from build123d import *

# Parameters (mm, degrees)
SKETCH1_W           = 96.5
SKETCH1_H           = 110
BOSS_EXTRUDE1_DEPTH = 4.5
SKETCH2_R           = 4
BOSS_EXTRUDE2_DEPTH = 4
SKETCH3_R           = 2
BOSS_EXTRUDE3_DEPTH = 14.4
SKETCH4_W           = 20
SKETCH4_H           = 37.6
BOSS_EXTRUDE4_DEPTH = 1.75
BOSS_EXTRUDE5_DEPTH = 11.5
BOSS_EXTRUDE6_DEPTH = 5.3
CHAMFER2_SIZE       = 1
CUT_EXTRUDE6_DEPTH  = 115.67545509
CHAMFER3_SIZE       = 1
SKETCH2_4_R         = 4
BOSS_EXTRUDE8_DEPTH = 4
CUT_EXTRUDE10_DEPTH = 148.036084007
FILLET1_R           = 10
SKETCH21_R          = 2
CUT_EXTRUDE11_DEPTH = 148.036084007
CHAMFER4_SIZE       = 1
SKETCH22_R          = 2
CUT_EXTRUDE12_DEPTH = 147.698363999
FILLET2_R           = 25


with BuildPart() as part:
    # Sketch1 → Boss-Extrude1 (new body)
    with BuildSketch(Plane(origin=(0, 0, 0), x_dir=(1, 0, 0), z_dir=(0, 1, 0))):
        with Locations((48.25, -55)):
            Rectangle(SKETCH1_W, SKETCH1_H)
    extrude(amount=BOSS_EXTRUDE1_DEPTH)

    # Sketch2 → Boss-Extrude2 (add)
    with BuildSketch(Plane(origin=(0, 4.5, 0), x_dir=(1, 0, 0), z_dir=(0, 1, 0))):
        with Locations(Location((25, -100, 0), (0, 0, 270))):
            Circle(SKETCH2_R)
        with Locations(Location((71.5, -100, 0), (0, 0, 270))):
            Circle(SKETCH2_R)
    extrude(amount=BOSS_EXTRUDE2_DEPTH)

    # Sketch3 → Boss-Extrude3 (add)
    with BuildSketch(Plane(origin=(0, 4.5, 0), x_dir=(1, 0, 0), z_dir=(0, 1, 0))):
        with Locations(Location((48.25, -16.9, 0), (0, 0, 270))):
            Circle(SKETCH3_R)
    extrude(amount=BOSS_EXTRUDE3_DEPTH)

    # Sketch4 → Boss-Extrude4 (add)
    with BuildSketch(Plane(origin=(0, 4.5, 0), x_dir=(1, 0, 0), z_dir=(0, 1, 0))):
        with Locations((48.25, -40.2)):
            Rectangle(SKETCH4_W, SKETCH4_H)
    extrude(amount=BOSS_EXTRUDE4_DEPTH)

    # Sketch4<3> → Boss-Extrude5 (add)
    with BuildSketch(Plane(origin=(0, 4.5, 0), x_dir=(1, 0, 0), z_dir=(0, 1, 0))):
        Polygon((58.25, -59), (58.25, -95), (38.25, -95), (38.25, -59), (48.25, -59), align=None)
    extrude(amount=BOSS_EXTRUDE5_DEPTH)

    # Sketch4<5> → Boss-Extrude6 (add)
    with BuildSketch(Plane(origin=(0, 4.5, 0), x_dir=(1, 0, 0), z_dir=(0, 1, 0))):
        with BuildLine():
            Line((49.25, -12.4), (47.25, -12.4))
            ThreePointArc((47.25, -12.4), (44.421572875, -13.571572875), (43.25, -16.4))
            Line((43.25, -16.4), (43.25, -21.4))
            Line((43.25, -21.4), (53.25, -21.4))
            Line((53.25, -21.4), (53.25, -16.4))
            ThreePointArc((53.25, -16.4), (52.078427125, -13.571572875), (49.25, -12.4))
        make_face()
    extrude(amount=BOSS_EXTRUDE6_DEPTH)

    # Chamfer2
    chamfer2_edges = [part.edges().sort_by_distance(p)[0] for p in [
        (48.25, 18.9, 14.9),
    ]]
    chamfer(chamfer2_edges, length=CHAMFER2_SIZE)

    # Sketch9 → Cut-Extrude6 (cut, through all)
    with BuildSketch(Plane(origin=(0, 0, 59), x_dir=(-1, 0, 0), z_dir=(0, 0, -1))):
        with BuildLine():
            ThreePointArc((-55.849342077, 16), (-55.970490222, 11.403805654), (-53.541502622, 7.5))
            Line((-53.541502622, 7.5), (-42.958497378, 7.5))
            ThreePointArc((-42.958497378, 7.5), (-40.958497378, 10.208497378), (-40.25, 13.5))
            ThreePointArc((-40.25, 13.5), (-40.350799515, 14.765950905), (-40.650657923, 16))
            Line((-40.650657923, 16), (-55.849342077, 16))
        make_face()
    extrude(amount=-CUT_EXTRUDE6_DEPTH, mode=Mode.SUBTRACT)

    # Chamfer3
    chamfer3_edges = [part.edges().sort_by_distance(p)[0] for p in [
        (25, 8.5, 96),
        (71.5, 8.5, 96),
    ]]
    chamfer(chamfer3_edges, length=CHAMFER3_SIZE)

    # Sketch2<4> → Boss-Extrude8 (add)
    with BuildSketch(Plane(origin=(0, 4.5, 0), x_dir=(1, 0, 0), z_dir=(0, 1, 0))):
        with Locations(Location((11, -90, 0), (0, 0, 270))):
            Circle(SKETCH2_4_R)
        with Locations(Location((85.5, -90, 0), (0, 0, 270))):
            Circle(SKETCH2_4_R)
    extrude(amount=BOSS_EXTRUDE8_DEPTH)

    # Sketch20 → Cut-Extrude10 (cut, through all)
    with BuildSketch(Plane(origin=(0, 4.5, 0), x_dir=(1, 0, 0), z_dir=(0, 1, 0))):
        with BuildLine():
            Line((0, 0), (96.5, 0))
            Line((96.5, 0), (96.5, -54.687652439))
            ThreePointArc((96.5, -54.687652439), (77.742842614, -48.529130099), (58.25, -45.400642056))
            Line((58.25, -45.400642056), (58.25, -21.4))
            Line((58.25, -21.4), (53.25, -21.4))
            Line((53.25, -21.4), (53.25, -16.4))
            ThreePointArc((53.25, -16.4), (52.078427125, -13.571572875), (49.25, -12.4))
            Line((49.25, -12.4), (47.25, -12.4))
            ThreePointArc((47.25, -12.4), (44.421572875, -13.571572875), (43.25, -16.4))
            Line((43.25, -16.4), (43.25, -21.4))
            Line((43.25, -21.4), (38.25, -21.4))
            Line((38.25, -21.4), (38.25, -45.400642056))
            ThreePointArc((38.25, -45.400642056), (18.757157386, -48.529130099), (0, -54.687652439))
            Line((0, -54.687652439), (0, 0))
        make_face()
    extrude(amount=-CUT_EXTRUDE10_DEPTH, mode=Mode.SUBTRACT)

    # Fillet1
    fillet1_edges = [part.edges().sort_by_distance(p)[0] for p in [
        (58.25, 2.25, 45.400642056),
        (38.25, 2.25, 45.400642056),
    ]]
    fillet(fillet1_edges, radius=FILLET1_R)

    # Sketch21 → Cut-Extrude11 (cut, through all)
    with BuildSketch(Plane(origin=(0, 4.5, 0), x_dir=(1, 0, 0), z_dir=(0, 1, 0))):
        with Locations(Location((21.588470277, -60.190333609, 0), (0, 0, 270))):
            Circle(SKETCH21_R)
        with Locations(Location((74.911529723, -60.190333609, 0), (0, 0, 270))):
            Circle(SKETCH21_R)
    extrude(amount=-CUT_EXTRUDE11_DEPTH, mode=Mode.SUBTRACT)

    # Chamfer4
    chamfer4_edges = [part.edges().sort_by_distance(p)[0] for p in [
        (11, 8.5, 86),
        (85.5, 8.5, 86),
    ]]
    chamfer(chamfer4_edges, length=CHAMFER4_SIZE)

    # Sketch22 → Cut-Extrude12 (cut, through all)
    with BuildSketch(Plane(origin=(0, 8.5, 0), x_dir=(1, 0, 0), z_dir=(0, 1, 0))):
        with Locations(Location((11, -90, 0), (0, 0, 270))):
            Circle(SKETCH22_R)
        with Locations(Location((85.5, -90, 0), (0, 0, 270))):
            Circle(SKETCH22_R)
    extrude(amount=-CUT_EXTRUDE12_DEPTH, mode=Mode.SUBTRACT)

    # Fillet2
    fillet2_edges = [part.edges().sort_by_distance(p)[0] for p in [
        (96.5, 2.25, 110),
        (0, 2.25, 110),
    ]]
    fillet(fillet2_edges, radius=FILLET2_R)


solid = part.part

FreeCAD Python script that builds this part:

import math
import FreeCAD as App
import Part
import Sketcher

V = App.Vector


def edges_at(feature, points):
    """Names of the edges that pass closest to the given points."""
    edges = feature.Shape.Edges
    near = lambda p: min(range(len(edges)), key=lambda i: edges[i].distToShape(Part.Vertex(*p))[0])
    return sorted({f"Edge{near(p) + 1}" for p in points})


def add_polygon(sketch, points):
    """Adds a closed chain of lines whose ends are joined by coincident constraints."""
    first, n = sketch.GeometryCount, len(points)
    for a, b in zip(points, points[1:] + points[:1]):
        sketch.addGeometry(Part.LineSegment(App.Vector(*a, 0), App.Vector(*b, 0)), False)
    for i in range(n):
        sketch.addConstraint(Sketcher.Constraint("Coincident", first + i, 2, first + (i + 1) % n, 1))

doc = App.newDocument("Part")
body = doc.addObject("PartDesign::Body", "Body")

# Sketch on XZ plane
sketch1 = body.newObject("Sketcher::SketchObject", "Sketch")
sketch1.AttachmentSupport = (doc.getObject("XZ_Plane"), [""])
sketch1.MapMode = "FlatFace"
add_polygon(sketch1, [(0, 0), (0, 110), (96, 110), (96, 0)])  # lines 0-3
sketch1.addConstraint(Sketcher.Constraint("Vertical", 0))
sketch1.addConstraint(Sketcher.Constraint("Horizontal", 1))
sketch1.addConstraint(Sketcher.Constraint("Vertical", 2))
sketch1.addConstraint(Sketcher.Constraint("Horizontal", 3))
sketch1.addConstraint(Sketcher.Constraint("Coincident", 3, 2, -1, 1))
sketch1.addConstraint(Sketcher.Constraint("DistanceY", 0, 1, 0, 2, 110.0))
sketch1.addConstraint(Sketcher.Constraint("DistanceX", 1, 1, 1, 2, 96.5))
pad1 = body.newObject("PartDesign::Pad", "Pad")
pad1.Profile = sketch1
pad1.Length = 4.5
pad1.Reversed = True

# Sketch on XZ plane
sketch2 = body.newObject("Sketcher::SketchObject", "Sketch001")
sketch2.AttachmentSupport = (doc.getObject("XZ_Plane"), [""])
sketch2.MapMode = "FlatFace"
sketch2.AttachmentOffset = App.Placement(V(0, 0, -4.5), App.Rotation())
sketch2.addGeometry(Part.Circle(V(25, 100, 0), V(0, 0, 1), 4), False)
sketch2.addGeometry(Part.Circle(V(71.5, 100, 0), V(0, 0, 1), 4), False)
sketch2.addConstraint(Sketcher.Constraint("Equal", 0, 1))
sketch2.addConstraint(Sketcher.Constraint("Horizontal", 0, 3, 1, 3))
sketch2.addConstraint(Sketcher.Constraint("Diameter", 0, 8.0))
sketch2.addConstraint(Sketcher.Constraint("DistanceX", -1, 1, 0, 3, 25.0))
sketch2.addConstraint(Sketcher.Constraint("DistanceY", -1, 1, 0, 3, 100.0))
sketch2.addConstraint(Sketcher.Constraint("DistanceX", -1, 1, 1, 3, 71.5))
pad2 = body.newObject("PartDesign::Pad", "Pad001")
pad2.Profile = sketch2
pad2.Length = 4
pad2.Reversed = True

# Sketch on XZ plane
sketch3 = body.newObject("Sketcher::SketchObject", "Sketch002")
sketch3.AttachmentSupport = (doc.getObject("XZ_Plane"), [""])
sketch3.MapMode = "FlatFace"
sketch3.AttachmentOffset = App.Placement(V(0, 0, -4.5), App.Rotation())
sketch3.addGeometry(Part.Circle(V(48.2, 16.9, 0), V(0, 0, 1), 2), False)
sketch3.addConstraint(Sketcher.Constraint("Diameter", 0, 4.0))
sketch3.addConstraint(Sketcher.Constraint("DistanceY", -1, 1, 0, 3, 16.9))
sketch3.addConstraint(Sketcher.Constraint("DistanceX", -1, 1, 0, 3, 48.25))
pad3 = body.newObject("PartDesign::Pad", "Pad002")
pad3.Profile = sketch3
pad3.Length = 14.4
pad3.Reversed = True

# Sketch on XZ plane
sketch4 = body.newObject("Sketcher::SketchObject", "Sketch003")
sketch4.AttachmentSupport = (doc.getObject("XZ_Plane"), [""])
sketch4.MapMode = "FlatFace"
sketch4.AttachmentOffset = App.Placement(V(0, 0, -4.5), App.Rotation())
add_polygon(sketch4, [(38, 21), (38, 59), (58, 59), (58, 21)])  # lines 0-3
sketch4.addConstraint(Sketcher.Constraint("Vertical", 0))
sketch4.addConstraint(Sketcher.Constraint("Horizontal", 1))
sketch4.addConstraint(Sketcher.Constraint("Vertical", 2))
sketch4.addConstraint(Sketcher.Constraint("Horizontal", 3))
sketch4.addConstraint(Sketcher.Constraint("DistanceX", 1, 1, 1, 2, 20.0))
sketch4.addConstraint(Sketcher.Constraint("DistanceY", 0, 1, 0, 2, 37.6))
sketch4.addConstraint(Sketcher.Constraint("DistanceY", -1, 1, 0, 2, 59.0))
sketch4.addConstraint(Sketcher.Constraint("DistanceX", -1, 1, 0, 2, 38.25))
pad4 = body.newObject("PartDesign::Pad", "Pad003")
pad4.Profile = sketch4
pad4.Length = 1.75
pad4.Reversed = True

# Sketch on XZ plane
sketch5 = body.newObject("Sketcher::SketchObject", "Sketch004")
sketch5.AttachmentSupport = (doc.getObject("XZ_Plane"), [""])
sketch5.MapMode = "FlatFace"
sketch5.AttachmentOffset = App.Placement(V(0, 0, -4.5), App.Rotation())
add_polygon(sketch5, [(58, 95), (58, 59), (38, 59), (38, 95)])  # lines 0-3
sketch5.addConstraint(Sketcher.Constraint("Vertical", 0))
sketch5.addConstraint(Sketcher.Constraint("Horizontal", 1))
sketch5.addConstraint(Sketcher.Constraint("Vertical", 2))
sketch5.addConstraint(Sketcher.Constraint("Horizontal", 3))
sketch5.addConstraint(Sketcher.Constraint("DistanceX", 1, 2, 1, 1, 20.0))
sketch5.addConstraint(Sketcher.Constraint("DistanceY", 0, 2, 0, 1, 36.0))
sketch5.addConstraint(Sketcher.Constraint("DistanceY", -1, 1, 0, 2, 59.0))
sketch5.addConstraint(Sketcher.Constraint("DistanceX", -1, 1, 0, 2, 58.25))
pad5 = body.newObject("PartDesign::Pad", "Pad004")
pad5.Profile = sketch5
pad5.Length = 11.5
pad5.Reversed = True

# Sketch on XZ plane
sketch6 = body.newObject("Sketcher::SketchObject", "Sketch005")
sketch6.AttachmentSupport = (doc.getObject("XZ_Plane"), [""])
sketch6.MapMode = "FlatFace"
sketch6.AttachmentOffset = App.Placement(V(0, 0, -4.5), App.Rotation())
sketch6.addGeometry(Part.LineSegment(V(49.2, 12.4, 0), V(47.2, 12.4, 0)), False)
sketch6.addGeometry(Part.ArcOfCircle(Part.Circle(V(47.2, 16.4, 0), V(0, 0, 1), 4), math.radians(180), math.radians(270)), False)
sketch6.addGeometry(Part.LineSegment(V(43.2, 16.4, 0), V(43.2, 21.4, 0)), False)
sketch6.addGeometry(Part.LineSegment(V(43.2, 21.4, 0), V(53.2, 21.4, 0)), False)
sketch6.addGeometry(Part.LineSegment(V(53.2, 21.4, 0), V(53.2, 16.4, 0)), False)
sketch6.addGeometry(Part.ArcOfCircle(Part.Circle(V(49.3, 16.4, 0), V(0, 0, 1), 4), math.radians(-90), math.radians(0)), False)
sketch6.addConstraint(Sketcher.Constraint("Tangent", 0, 2, 1, 2))
sketch6.addConstraint(Sketcher.Constraint("Tangent", 1, 1, 2, 1))
sketch6.addConstraint(Sketcher.Constraint("Coincident", 2, 2, 3, 1))
sketch6.addConstraint(Sketcher.Constraint("Coincident", 3, 2, 4, 1))
sketch6.addConstraint(Sketcher.Constraint("Tangent", 4, 2, 5, 2))
sketch6.addConstraint(Sketcher.Constraint("Tangent", 5, 1, 0, 1))
sketch6.addConstraint(Sketcher.Constraint("Horizontal", 0))
sketch6.addConstraint(Sketcher.Constraint("Vertical", 2))
sketch6.addConstraint(Sketcher.Constraint("Horizontal", 3))
sketch6.addConstraint(Sketcher.Constraint("Vertical", 4))
sketch6.addConstraint(Sketcher.Constraint("Equal", 1, 5))
sketch6.addConstraint(Sketcher.Constraint("Radius", 1, 4.0))
sketch6.addConstraint(Sketcher.Constraint("DistanceX", 0, 2, 0, 1, 2.0))
sketch6.addConstraint(Sketcher.Constraint("DistanceY", 2, 1, 2, 2, 5.0))
sketch6.addConstraint(Sketcher.Constraint("DistanceY", -1, 1, 1, 3, 16.4))
sketch6.addConstraint(Sketcher.Constraint("DistanceX", -1, 1, 1, 3, 47.25))
pad6 = body.newObject("PartDesign::Pad", "Pad005")
pad6.Profile = sketch6
pad6.Length = 5.3
pad6.Reversed = True
doc.recompute()

chamfer = body.newObject("PartDesign::Chamfer", "Chamfer")
chamfer.Base = (pad6, edges_at(pad6, [(48.25, 18.9, 14.9)]))
chamfer.Size = 1

# Sketch on XY plane
sketch7 = body.newObject("Sketcher::SketchObject", "Sketch006")
sketch7.AttachmentSupport = (doc.getObject("XY_Plane"), [""])
sketch7.MapMode = "FlatFace"
sketch7.AttachmentOffset = App.Placement(V(0, 0, 59), App.Rotation())
sketch7.addGeometry(Part.ArcOfCircle(Part.Circle(V(48.3, 13.5, 0), V(0, 0, 1), 8), math.radians(-49), math.radians(18)), False)
sketch7.addGeometry(Part.LineSegment(V(53.5, 7.5, 0), V(43, 7.5, 0)), False)
sketch7.addGeometry(Part.ArcOfCircle(Part.Circle(V(48.3, 13.5, 0), V(0, 0, 1), 8), math.radians(-180), math.radians(-131)), False)
sketch7.addGeometry(Part.ArcOfCircle(Part.Circle(V(48.3, 13.5, 0), V(0, 0, 1), 8), math.radians(161.79), math.radians(180)), False)
sketch7.addGeometry(Part.LineSegment(V(40.7, 16, 0), V(55.8, 16, 0)), False)
sketch7.addConstraint(Sketcher.Constraint("Coincident", 0, 1, 1, 1))
sketch7.addConstraint(Sketcher.Constraint("Coincident", 1, 2, 2, 2))
sketch7.addConstraint(Sketcher.Constraint("Tangent", 2, 1, 3, 2))
sketch7.addConstraint(Sketcher.Constraint("Coincident", 3, 1, 4, 1))
sketch7.addConstraint(Sketcher.Constraint("Coincident", 4, 2, 0, 2))
sketch7.addConstraint(Sketcher.Constraint("Horizontal", 1))
sketch7.addConstraint(Sketcher.Constraint("Horizontal", 4))
sketch7.addConstraint(Sketcher.Constraint("Coincident", 2, 3, 0, 3))
sketch7.addConstraint(Sketcher.Constraint("Equal", 0, 2))
sketch7.addConstraint(Sketcher.Constraint("Equal", 2, 3))
sketch7.addConstraint(Sketcher.Constraint("Horizontal", 3, 3, 2, 1))
sketch7.addConstraint(Sketcher.Constraint("Radius", 0, 8.0))
sketch7.addConstraint(Sketcher.Constraint("DistanceY", -1, 1, 3, 1, 16.0))
sketch7.addConstraint(Sketcher.Constraint("DistanceY", 0, 1, 3, 3, 6.0))
sketch7.addConstraint(Sketcher.Constraint("DistanceY", -1, 1, 0, 3, 13.5))
sketch7.addConstraint(Sketcher.Constraint("DistanceX", -1, 1, 0, 3, 48.25))
pocket1 = body.newObject("PartDesign::Pocket", "Pocket")
pocket1.Profile = sketch7
pocket1.Type = "ThroughAll"
pocket1.Reversed = True
doc.recompute()

chamfer2 = body.newObject("PartDesign::Chamfer", "Chamfer001")
chamfer2.Base = (pocket1, edges_at(pocket1, [(25, 8.5, 96), (71.5, 8.5, 96)]))
chamfer2.Size = 1

# Sketch on XZ plane
sketch8 = body.newObject("Sketcher::SketchObject", "Sketch007")
sketch8.AttachmentSupport = (doc.getObject("XZ_Plane"), [""])
sketch8.MapMode = "FlatFace"
sketch8.AttachmentOffset = App.Placement(V(0, 0, -4.5), App.Rotation())
sketch8.addGeometry(Part.Circle(V(11, 90, 0), V(0, 0, 1), 4), False)
sketch8.addGeometry(Part.Circle(V(85.5, 90, 0), V(0, 0, 1), 4), False)
sketch8.addConstraint(Sketcher.Constraint("Equal", 0, 1))
sketch8.addConstraint(Sketcher.Constraint("Horizontal", 0, 3, 1, 3))
sketch8.addConstraint(Sketcher.Constraint("Diameter", 0, 8.0))
sketch8.addConstraint(Sketcher.Constraint("DistanceX", -1, 1, 0, 3, 11.0))
sketch8.addConstraint(Sketcher.Constraint("DistanceY", -1, 1, 0, 3, 90.0))
sketch8.addConstraint(Sketcher.Constraint("DistanceX", -1, 1, 1, 3, 85.5))
pad7 = body.newObject("PartDesign::Pad", "Pad006")
pad7.Profile = sketch8
pad7.Length = 4
pad7.Reversed = True

# Sketch on XZ plane
sketch9 = body.newObject("Sketcher::SketchObject", "Sketch008")
sketch9.AttachmentSupport = (doc.getObject("XZ_Plane"), [""])
sketch9.MapMode = "FlatFace"
sketch9.AttachmentOffset = App.Placement(V(0, 0, -4.5), App.Rotation())
sketch9.addGeometry(Part.LineSegment(V(96.5, 0, 0), V(0, 0, 0)), False)
sketch9.addGeometry(Part.LineSegment(V(0, 0, 0), V(0, 54.7, 0)), False)
sketch9.addGeometry(Part.ArcOfCircle(Part.Circle(V(48.3, 170, 0), V(0, 0, 1), 125), math.radians(-112.71), math.radians(-94.59)), False)
sketch9.addGeometry(Part.LineSegment(V(38.2, 45.4, 0), V(38.2, 21.4, 0)), False)
sketch9.addGeometry(Part.LineSegment(V(38.2, 21.4, 0), V(43.2, 21.4, 0)), False)
sketch9.addGeometry(Part.LineSegment(V(43.2, 21.4, 0), V(43.2, 16.4, 0)), False)
sketch9.addGeometry(Part.ArcOfCircle(Part.Circle(V(47.2, 16.4, 0), V(0, 0, 1), 4), math.radians(180), math.radians(270)), False)
sketch9.addGeometry(Part.LineSegment(V(47.2, 12.4, 0), V(49.2, 12.4, 0)), False)
sketch9.addGeometry(Part.ArcOfCircle(Part.Circle(V(49.3, 16.4, 0), V(0, 0, 1), 4), math.radians(-90), math.radians(0)), False)
sketch9.addGeometry(Part.LineSegment(V(53.2, 16.4, 0), V(53.2, 21.4, 0)), False)
sketch9.addGeometry(Part.LineSegment(V(53.2, 21.4, 0), V(58.2, 21.4, 0)), False)
sketch9.addGeometry(Part.LineSegment(V(58.2, 21.4, 0), V(58.2, 45.4, 0)), False)
sketch9.addGeometry(Part.ArcOfCircle(Part.Circle(V(48.2, 170, 0), V(0, 0, 1), 125), math.radians(-85.41), math.radians(-67.29)), False)
sketch9.addGeometry(Part.LineSegment(V(96.5, 54.7, 0), V(96.5, 0, 0)), False)
sketch9.addConstraint(Sketcher.Constraint("Coincident", 0, 2, 1, 1))
sketch9.addConstraint(Sketcher.Constraint("Coincident", 1, 2, 2, 1))
sketch9.addConstraint(Sketcher.Constraint("Coincident", 2, 2, 3, 1))
sketch9.addConstraint(Sketcher.Constraint("Coincident", 3, 2, 4, 1))
sketch9.addConstraint(Sketcher.Constraint("Coincident", 4, 2, 5, 1))
sketch9.addConstraint(Sketcher.Constraint("Tangent", 5, 2, 6, 1))
sketch9.addConstraint(Sketcher.Constraint("Tangent", 6, 2, 7, 1))
sketch9.addConstraint(Sketcher.Constraint("Tangent", 7, 2, 8, 1))
sketch9.addConstraint(Sketcher.Constraint("Tangent", 8, 2, 9, 1))
sketch9.addConstraint(Sketcher.Constraint("Coincident", 9, 2, 10, 1))
sketch9.addConstraint(Sketcher.Constraint("Coincident", 10, 2, 11, 1))
sketch9.addConstraint(Sketcher.Constraint("Coincident", 11, 2, 12, 1))
sketch9.addConstraint(Sketcher.Constraint("Coincident", 12, 2, 13, 1))
sketch9.addConstraint(Sketcher.Constraint("Coincident", 13, 2, 0, 1))
sketch9.addConstraint(Sketcher.Constraint("Horizontal", 0))
sketch9.addConstraint(Sketcher.Constraint("Vertical", 1))
sketch9.addConstraint(Sketcher.Constraint("Vertical", 3))
sketch9.addConstraint(Sketcher.Constraint("Horizontal", 4))
sketch9.addConstraint(Sketcher.Constraint("Vertical", 5))
sketch9.addConstraint(Sketcher.Constraint("Horizontal", 7))
sketch9.addConstraint(Sketcher.Constraint("Vertical", 9))
sketch9.addConstraint(Sketcher.Constraint("Horizontal", 10))
sketch9.addConstraint(Sketcher.Constraint("Vertical", 11))
sketch9.addConstraint(Sketcher.Constraint("Vertical", 13))
sketch9.addConstraint(Sketcher.Constraint("Coincident", 0, 2, -1, 1))
sketch9.addConstraint(Sketcher.Constraint("Coincident", 12, 3, 2, 3))
sketch9.addConstraint(Sketcher.Constraint("Equal", 6, 8))
sketch9.addConstraint(Sketcher.Constraint("Equal", 2, 12))
sketch9.addConstraint(Sketcher.Constraint("Horizontal", 4, 2, 9, 2))
sketch9.addConstraint(Sketcher.Constraint("Horizontal", 2, 2, 11, 2))
sketch9.addConstraint(Sketcher.Constraint("Horizontal", 1, 2, 12, 2))
sketch9.addConstraint(Sketcher.Constraint("Equal", 4, 10))
sketch9.addConstraint(Sketcher.Constraint("Equal", 10, 5))
sketch9.addConstraint(Sketcher.Constraint("Radius", 2, 125.0))
sketch9.addConstraint(Sketcher.Constraint("Radius", 6, 4.0))
sketch9.addConstraint(Sketcher.Constraint("DistanceX", 4, 1, 4, 2, 5.0))
sketch9.addConstraint(Sketcher.Constraint("DistanceX", 7, 1, 7, 2, 2.0))
sketch9.addConstraint(Sketcher.Constraint("DistanceX", 0, 2, 0, 1, 96.5))
sketch9.addConstraint(Sketcher.Constraint("DistanceY", -1, 1, 2, 3, 170.0))
sketch9.addConstraint(Sketcher.Constraint("DistanceY", -1, 1, 6, 3, 16.4))
pocket2 = body.newObject("PartDesign::Pocket", "Pocket001")
pocket2.Profile = sketch9
pocket2.Type = "ThroughAll"
pocket2.Reversed = True
doc.recompute()

fillet = body.newObject("PartDesign::Fillet", "Fillet")
fillet.Base = (pocket2, edges_at(pocket2, [(58.25, 2.25, 45.401), (38.25, 2.25, 45.401)]))
fillet.Radius = 10

# Sketch on XZ plane
sketch10 = body.newObject("Sketcher::SketchObject", "Sketch009")
sketch10.AttachmentSupport = (doc.getObject("XZ_Plane"), [""])
sketch10.MapMode = "FlatFace"
sketch10.AttachmentOffset = App.Placement(V(0, 0, -4.5), App.Rotation())
sketch10.addGeometry(Part.Circle(V(21.6, 60.2, 0), V(0, 0, 1), 2), False)
sketch10.addGeometry(Part.Circle(V(74.9, 60.2, 0), V(0, 0, 1), 2), False)
sketch10.addConstraint(Sketcher.Constraint("Equal", 0, 1))
sketch10.addConstraint(Sketcher.Constraint("Horizontal", 0, 3, 1, 3))
sketch10.addConstraint(Sketcher.Constraint("Diameter", 0, 4.0))
sketch10.addConstraint(Sketcher.Constraint("DistanceX", -1, 1, 0, 3, 21.58847))
sketch10.addConstraint(Sketcher.Constraint("DistanceX", -1, 1, 1, 3, 74.91153))
sketch10.addConstraint(Sketcher.Constraint("DistanceY", -1, 1, 0, 3, 60.190334))
pocket3 = body.newObject("PartDesign::Pocket", "Pocket002")
pocket3.Profile = sketch10
pocket3.Type = "ThroughAll"
pocket3.Reversed = True
doc.recompute()

chamfer3 = body.newObject("PartDesign::Chamfer", "Chamfer002")
chamfer3.Base = (pocket3, edges_at(pocket3, [(11, 8.5, 86), (85.5, 8.5, 86)]))
chamfer3.Size = 1

# Sketch on XZ plane
sketch11 = body.newObject("Sketcher::SketchObject", "Sketch010")
sketch11.AttachmentSupport = (doc.getObject("XZ_Plane"), [""])
sketch11.MapMode = "FlatFace"
sketch11.AttachmentOffset = App.Placement(V(0, 0, -8.5), App.Rotation())
sketch11.addGeometry(Part.Circle(V(11, 90, 0), V(0, 0, 1), 2), False)
sketch11.addGeometry(Part.Circle(V(85.5, 90, 0), V(0, 0, 1), 2), False)
sketch11.addConstraint(Sketcher.Constraint("Equal", 0, 1))
sketch11.addConstraint(Sketcher.Constraint("Horizontal", 0, 3, 1, 3))
sketch11.addConstraint(Sketcher.Constraint("Diameter", 0, 4.0))
sketch11.addConstraint(Sketcher.Constraint("DistanceX", -1, 1, 0, 3, 11.0))
sketch11.addConstraint(Sketcher.Constraint("DistanceY", -1, 1, 0, 3, 90.0))
sketch11.addConstraint(Sketcher.Constraint("DistanceX", -1, 1, 1, 3, 85.5))
pocket4 = body.newObject("PartDesign::Pocket", "Pocket003")
pocket4.Profile = sketch11
pocket4.Type = "ThroughAll"
pocket4.Reversed = True
doc.recompute()

fillet2 = body.newObject("PartDesign::Fillet", "Fillet001")
fillet2.Base = (pocket4, edges_at(pocket4, [(96.5, 2.25, 110), (0, 2.25, 110)]))
fillet2.Radius = 25

doc.recompute()
